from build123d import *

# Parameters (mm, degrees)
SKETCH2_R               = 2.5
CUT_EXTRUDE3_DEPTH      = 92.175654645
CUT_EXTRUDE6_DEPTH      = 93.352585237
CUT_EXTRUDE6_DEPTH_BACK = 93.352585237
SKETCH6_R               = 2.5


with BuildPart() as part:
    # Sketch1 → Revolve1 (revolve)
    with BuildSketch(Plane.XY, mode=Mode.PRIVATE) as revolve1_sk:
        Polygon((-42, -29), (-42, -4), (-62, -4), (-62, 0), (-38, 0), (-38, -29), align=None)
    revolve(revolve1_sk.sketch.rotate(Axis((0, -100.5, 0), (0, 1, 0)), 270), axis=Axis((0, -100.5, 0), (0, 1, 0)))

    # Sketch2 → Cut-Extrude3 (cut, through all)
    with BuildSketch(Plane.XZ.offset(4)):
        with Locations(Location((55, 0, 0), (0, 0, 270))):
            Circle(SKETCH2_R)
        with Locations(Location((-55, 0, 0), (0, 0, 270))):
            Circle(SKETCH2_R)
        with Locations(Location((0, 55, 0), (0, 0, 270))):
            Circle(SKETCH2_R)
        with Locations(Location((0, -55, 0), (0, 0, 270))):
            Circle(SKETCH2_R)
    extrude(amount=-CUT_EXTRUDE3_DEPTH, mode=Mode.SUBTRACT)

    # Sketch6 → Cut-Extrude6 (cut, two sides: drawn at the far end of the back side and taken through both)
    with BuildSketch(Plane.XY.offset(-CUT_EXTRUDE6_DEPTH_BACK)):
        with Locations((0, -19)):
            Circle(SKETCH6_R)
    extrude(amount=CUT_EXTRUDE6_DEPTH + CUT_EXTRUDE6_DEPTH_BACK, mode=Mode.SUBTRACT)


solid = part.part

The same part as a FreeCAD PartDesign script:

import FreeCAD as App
import Part
import Sketcher

V = App.Vector

doc = App.newDocument("Part")
body = doc.addObject("PartDesign::Body", "Body")

sketch1 = doc.addObject("Sketcher::SketchObject", "Sketch")
body.addObject(sketch1)
sketch1.AttachmentSupport = (doc.XY_Plane, [""])
sketch1.MapMode = "FlatFace"
sketch1.addGeometry([
    Part.LineSegment(V(-42, -4, 0), V(-42, -29, 0)),
    Part.LineSegment(V(-42, -29, 0), V(-38, -29, 0)),
    Part.LineSegment(V(-38, -29, 0), V(-38, 0, 0)),
    Part.LineSegment(V(-38, 0, 0), V(-62, 0, 0)),
    Part.LineSegment(V(-62, 0, 0), V(-62, -4, 0)),
    Part.LineSegment(V(-62, -4, 0), V(-42, -4, 0)),
], False)
sketch1.addConstraint([
    Sketcher.Constraint("Coincident", 0, 2, 1, 1),
    Sketcher.Constraint("Coincident", 1, 2, 2, 1),
    Sketcher.Constraint("Coincident", 2, 2, 3, 1),
    Sketcher.Constraint("Coincident", 3, 2, 4, 1),
    Sketcher.Constraint("Coincident", 4, 2, 5, 1),
    Sketcher.Constraint("Coincident", 5, 2, 0, 1),
    Sketcher.Constraint("Vertical", 0),
    Sketcher.Constraint("Horizontal", 1),
    Sketcher.Constraint("Vertical", 2),
    Sketcher.Constraint("Horizontal", 3),
    Sketcher.Constraint("Vertical", 4),
    Sketcher.Constraint("Horizontal", 5),
    Sketcher.Constraint("PointOnObject", 2, 2, -1),
    Sketcher.Constraint("Equal", 1, 4),
    Sketcher.Constraint("DistanceX", 1, 1, 1, 2, 4.0),
    Sketcher.Constraint("DistanceX", 3, 2, 3, 1, 24.0),
    Sketcher.Constraint("DistanceY", 0, 2, 0, 1, 25.0),
    Sketcher.Constraint("DistanceX", 0, 2, -1, 1, 42.0),
])
revolution = doc.addObject("PartDesign::Revolution", "Revolution")
body.addObject(revolution)
revolution.Profile = sketch1
revolution.ReferenceAxis = (sketch1, ["V_Axis"])
revolution.Angle = 360

sketch2 = doc.addObject("Sketcher::SketchObject", "Sketch001")
body.addObject(sketch2)
sketch2.AttachmentSupport = (doc.XZ_Plane, [""])
sketch2.MapMode = "FlatFace"
sketch2.AttachmentOffset = App.Placement(V(0, 0, 4), App.Rotation())
sketch2.addGeometry([
    Part.Circle(V(55, 0, 0), V(0, 0, 1), 2.5),
    Part.Circle(V(-55, 0, 0), V(0, 0, 1), 2.5),
    Part.Circle(V(0, 55, 0), V(0, 0, 1), 2.5),
    Part.Circle(V(0, -55, 0), V(0, 0, 1), 2.5),
], False)
sketch2.addConstraint([
    Sketcher.Constraint("Equal", 0, 1),
    Sketcher.Constraint("Equal", 1, 2),
    Sketcher.Constraint("Equal", 2, 3),
    Sketcher.Constraint("Symmetric", 0, 3, 1, 3, -1, 1),
    Sketcher.Constraint("Symmetric", 2, 3, 3, 3, -1, 1),
    Sketcher.Constraint("PointOnObject", 0, 3, -1),
    Sketcher.Constraint("PointOnObject", 2, 3, -2),
    Sketcher.Constraint("Diameter", 0, 5.0),
    Sketcher.Constraint("DistanceX", -1, 1, 0, 3, 55.0),
    Sketcher.Constraint("DistanceY", -1, 1, 2, 3, 55.0),
])
pocket1 = doc.addObject("PartDesign::Pocket", "Pocket")
body.addObject(pocket1)
pocket1.Profile = sketch2
pocket1.Type = "ThroughAll"

sketch3 = doc.addObject("Sketcher::SketchObject", "Sketch002")
body.addObject(sketch3)
sketch3.AttachmentSupport = (doc.XY_Plane, [""])
sketch3.MapMode = "FlatFace"
sketch3.addGeometry(Part.Circle(V(0, -19, 0), V(0, 0, 1), 2.5), False)
sketch3.addConstraint([
    Sketcher.Constraint("PointOnObject", 0, 3, -2),
    Sketcher.Constraint("Diameter", 0, 5.0),
    Sketcher.Constraint("DistanceY", 0, 3, -1, 1, 19.0),
])
pocket2 = doc.addObject("PartDesign::Pocket", "Pocket001")
body.addObject(pocket2)
pocket2.Profile = sketch3
pocket2.Type = "ThroughAll"
pocket2.Midplane = True

doc.recompute()
